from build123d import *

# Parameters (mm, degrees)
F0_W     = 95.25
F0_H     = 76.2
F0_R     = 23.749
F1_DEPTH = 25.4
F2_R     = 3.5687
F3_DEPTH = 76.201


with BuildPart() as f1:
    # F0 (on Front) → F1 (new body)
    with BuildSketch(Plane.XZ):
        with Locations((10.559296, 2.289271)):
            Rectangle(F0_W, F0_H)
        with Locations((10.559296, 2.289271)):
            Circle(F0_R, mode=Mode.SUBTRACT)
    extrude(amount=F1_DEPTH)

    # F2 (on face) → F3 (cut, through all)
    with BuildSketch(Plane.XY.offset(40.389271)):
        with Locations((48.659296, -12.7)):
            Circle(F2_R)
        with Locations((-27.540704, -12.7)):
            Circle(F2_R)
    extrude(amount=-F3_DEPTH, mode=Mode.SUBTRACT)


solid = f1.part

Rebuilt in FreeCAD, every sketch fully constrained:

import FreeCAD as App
import Part
import Sketcher
Q = App.Units.Quantity


def add_polygon(sketch, points):
    """Adds a closed chain of lines whose ends are joined by coincident constraints."""
    first, n = sketch.GeometryCount, len(points)
    for a, b in zip(points, points[1:] + points[:1]):
        sketch.addGeometry(Part.LineSegment(App.Vector(*a, 0), App.Vector(*b, 0)), False)
    for i in range(n):
        sketch.addConstraint(Sketcher.Constraint("Coincident", first + i, 2, first + (i + 1) % n, 1))

doc = App.newDocument("Part")
body = doc.addObject("PartDesign::Body", "Body")

# Sketch on XZ plane
sketch1 = body.newObject("Sketcher::SketchObject", "Sketch")
sketch1.AttachmentSupport = (doc.getObject("XZ_Plane"), [""])
sketch1.MapMode = "FlatFace"
add_polygon(sketch1, [(-37, 40), (-37, -36), (58, -36), (58, 40)])  # lines 0-3
sketch1.addGeometry(Part.Circle(App.Vector(11, 2, 0), App.Vector(0, 0, 1), 24), False)  # 4
sketch1.addConstraint([
    Sketcher.Constraint("Vertical", 0),
    Sketcher.Constraint("Horizontal", 1),
    Sketcher.Constraint("Vertical", 2),
    Sketcher.Constraint("Horizontal", 3),
    Sketcher.Constraint("Diameter", 4, Q("1.87 in")),
    Sketcher.Constraint("DistanceY", 0, 2, 0, 1, Q("3 in")),
    Sketcher.Constraint("DistanceX", 1, 1, 1, 2, Q("3.75 in")),
    Sketcher.Constraint("DistanceY", 0, 2, 4, 3, Q("1.5 in")),
    Sketcher.Constraint("DistanceX", 0, 2, 4, 3, Q("1.875 in")),
    Sketcher.Constraint("DistanceY", -1, 1, 4, 3, 2.289271),
    Sketcher.Constraint("DistanceX", -1, 1, 4, 3, 10.559296),
])
pad1 = body.newObject("PartDesign::Pad", "Pad")
pad1.Profile = sketch1
pad1.Length = Q("1 in")

# Sketch on XY plane
sketch2 = body.newObject("Sketcher::SketchObject", "Sketch001")
sketch2.AttachmentSupport = (doc.getObject("XY_Plane"), [""])
sketch2.MapMode = "FlatFace"
sketch2.AttachmentOffset = App.Placement(App.Vector(0, 0, 40.389271), App.Rotation())
sketch2.addGeometry([
    Part.Circle(App.Vector(48.7, -12.7, 0), App.Vector(0, 0, 1), 3.6),
    Part.Circle(App.Vector(-27.5, -12.7, 0), App.Vector(0, 0, 1), 3.6),
], False)
sketch2.addConstraint([
    Sketcher.Constraint("Equal", 0, 1),
    Sketcher.Constraint("Horizontal", 0, 3, 1, 3),
    Sketcher.Constraint("Diameter", 0, Q("0.281 in")),
    Sketcher.Constraint("DistanceX", 1, 3, 0, 3, Q("3 in")),
    Sketcher.Constraint("DistanceY", 0, 3, -1, 1, Q("0.5 in")),
    Sketcher.Constraint("DistanceX", -1, 1, 0, 3, 48.659296),
])
pocket1 = body.newObject("PartDesign::Pocket", "Pocket")
pocket1.Profile = sketch2
pocket1.Type = "ThroughAll"

doc.recompute()
